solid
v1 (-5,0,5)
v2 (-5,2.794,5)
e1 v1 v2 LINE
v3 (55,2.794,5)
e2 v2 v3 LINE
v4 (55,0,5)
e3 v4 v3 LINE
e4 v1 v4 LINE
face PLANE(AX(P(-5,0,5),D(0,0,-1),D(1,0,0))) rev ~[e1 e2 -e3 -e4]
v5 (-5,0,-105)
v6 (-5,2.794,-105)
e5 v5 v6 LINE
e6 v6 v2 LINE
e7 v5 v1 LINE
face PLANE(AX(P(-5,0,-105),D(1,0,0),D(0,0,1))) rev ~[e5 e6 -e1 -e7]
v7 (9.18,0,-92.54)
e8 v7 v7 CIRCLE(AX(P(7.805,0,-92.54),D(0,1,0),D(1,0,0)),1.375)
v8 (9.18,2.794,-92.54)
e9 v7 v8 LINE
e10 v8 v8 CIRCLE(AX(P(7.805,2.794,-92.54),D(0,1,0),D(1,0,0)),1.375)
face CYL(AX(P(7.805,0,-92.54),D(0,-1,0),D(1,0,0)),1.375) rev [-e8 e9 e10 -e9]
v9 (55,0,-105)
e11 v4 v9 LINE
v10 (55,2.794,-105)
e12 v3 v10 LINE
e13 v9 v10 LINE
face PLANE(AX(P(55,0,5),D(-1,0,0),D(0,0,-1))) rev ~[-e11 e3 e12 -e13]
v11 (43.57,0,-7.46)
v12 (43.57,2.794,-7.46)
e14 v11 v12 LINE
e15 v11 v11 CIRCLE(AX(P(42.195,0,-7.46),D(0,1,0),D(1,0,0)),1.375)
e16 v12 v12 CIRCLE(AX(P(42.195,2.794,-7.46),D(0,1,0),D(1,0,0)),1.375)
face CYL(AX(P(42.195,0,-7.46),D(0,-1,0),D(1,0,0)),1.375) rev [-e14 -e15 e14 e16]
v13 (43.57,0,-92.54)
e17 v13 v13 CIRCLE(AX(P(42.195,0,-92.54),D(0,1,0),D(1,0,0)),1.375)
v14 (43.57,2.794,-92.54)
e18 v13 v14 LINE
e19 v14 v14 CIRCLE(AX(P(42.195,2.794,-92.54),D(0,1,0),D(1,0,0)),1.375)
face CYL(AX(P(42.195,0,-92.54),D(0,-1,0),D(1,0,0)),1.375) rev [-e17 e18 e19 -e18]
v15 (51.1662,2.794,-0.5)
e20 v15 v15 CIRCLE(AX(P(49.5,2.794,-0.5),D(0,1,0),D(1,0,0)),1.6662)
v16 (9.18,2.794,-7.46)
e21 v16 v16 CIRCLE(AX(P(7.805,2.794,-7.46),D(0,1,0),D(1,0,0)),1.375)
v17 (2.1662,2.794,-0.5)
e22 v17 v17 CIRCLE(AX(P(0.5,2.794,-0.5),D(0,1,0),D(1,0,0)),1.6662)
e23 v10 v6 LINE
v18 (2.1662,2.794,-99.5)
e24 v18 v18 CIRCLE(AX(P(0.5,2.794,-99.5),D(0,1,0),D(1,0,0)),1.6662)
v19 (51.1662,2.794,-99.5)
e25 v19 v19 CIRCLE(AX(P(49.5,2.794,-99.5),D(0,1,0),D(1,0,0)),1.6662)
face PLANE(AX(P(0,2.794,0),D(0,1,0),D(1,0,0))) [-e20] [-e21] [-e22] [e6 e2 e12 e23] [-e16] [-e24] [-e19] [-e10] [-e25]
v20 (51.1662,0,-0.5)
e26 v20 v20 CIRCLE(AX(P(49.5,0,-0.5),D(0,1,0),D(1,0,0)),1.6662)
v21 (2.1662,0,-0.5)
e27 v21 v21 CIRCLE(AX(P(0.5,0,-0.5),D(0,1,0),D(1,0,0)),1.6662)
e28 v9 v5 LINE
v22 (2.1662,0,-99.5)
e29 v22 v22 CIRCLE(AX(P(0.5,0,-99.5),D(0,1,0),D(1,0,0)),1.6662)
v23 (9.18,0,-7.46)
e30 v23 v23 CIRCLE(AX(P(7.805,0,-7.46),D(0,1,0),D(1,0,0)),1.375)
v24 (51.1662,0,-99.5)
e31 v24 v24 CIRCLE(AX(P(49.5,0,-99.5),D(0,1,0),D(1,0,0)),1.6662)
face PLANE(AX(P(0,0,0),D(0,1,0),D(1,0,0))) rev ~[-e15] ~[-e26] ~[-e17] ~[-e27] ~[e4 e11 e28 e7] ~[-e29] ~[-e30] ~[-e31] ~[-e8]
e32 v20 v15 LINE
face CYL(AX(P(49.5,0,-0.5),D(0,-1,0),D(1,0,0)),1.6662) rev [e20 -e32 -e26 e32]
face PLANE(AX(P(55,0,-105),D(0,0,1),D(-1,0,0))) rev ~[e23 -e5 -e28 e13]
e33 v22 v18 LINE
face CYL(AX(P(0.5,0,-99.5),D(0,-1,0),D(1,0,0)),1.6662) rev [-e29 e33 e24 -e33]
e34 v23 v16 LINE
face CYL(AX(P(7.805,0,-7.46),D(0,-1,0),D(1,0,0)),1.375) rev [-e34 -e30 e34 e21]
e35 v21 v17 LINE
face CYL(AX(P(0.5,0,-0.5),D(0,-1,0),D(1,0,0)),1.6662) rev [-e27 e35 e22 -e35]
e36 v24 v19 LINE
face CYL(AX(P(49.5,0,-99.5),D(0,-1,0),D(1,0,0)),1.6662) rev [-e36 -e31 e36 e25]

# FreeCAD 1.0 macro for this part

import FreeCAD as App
import Part
import Sketcher

V = App.Vector
Q = App.Units.Quantity


def add_polygon(sketch, points):
    """Adds a closed chain of lines whose ends are joined by coincident constraints."""
    first, n = sketch.GeometryCount, len(points)
    for a, b in zip(points, points[1:] + points[:1]):
        sketch.addGeometry(Part.LineSegment(App.Vector(*a, 0), App.Vector(*b, 0)), False)
    for i in range(n):
        sketch.addConstraint(Sketcher.Constraint("Coincident", first + i, 2, first + (i + 1) % n, 1))

doc = App.newDocument("Part")
body = doc.addObject("PartDesign::Body", "Body")

sketch1 = doc.addObject("Sketcher::SketchObject", "Sketch")
body.addObject(sketch1)
sketch1.AttachmentSupport = (doc.XZ_Plane, [""])
sketch1.MapMode = "FlatFace"
add_polygon(sketch1, [(-5, -105), (-5, 5), (55, 5), (55, -105)])
sketch1.addGeometry(Part.Circle(V(0.5, -0.5, 0), V(0, 0, 1), 1.6662), False)
sketch1.addGeometry(Part.Circle(V(7.805, -7.46, 0), V(0, 0, 1), 1.375), False)
sketch1.addGeometry(Part.Circle(V(42.195, -7.46, 0), V(0, 0, 1), 1.375), False)
sketch1.addGeometry(Part.Circle(V(49.5, -0.5, 0), V(0, 0, 1), 1.6662), False)
sketch1.addGeometry(Part.Circle(V(0.5, -99.5, 0), V(0, 0, 1), 1.6662), False)
sketch1.addGeometry(Part.Circle(V(7.805, -92.54, 0), V(0, 0, 1), 1.375), False)
sketch1.addGeometry(Part.Circle(V(42.195, -92.54, 0), V(0, 0, 1), 1.375), False)
sketch1.addGeometry(Part.Circle(V(49.5, -99.5, 0), V(0, 0, 1), 1.6662), False)
sketch1.addConstraint([
    Sketcher.Constraint("Vertical", 0),
    Sketcher.Constraint("Horizontal", 1),
    Sketcher.Constraint("Vertical", 2),
    Sketcher.Constraint("Horizontal", 3),
    Sketcher.Constraint("Equal", 5, 6),
    Sketcher.Constraint("Equal", 4, 7),
    Sketcher.Constraint("Equal", 7, 8),
    Sketcher.Constraint("Equal", 6, 9),
    Sketcher.Constraint("Equal", 9, 10),
    Sketcher.Constraint("Equal", 8, 11),
    Sketcher.Constraint("Horizontal", 5, 3, 6, 3),
    Sketcher.Constraint("Horizontal", 4, 3, 7, 3),
    Sketcher.Constraint("Horizontal", 9, 3, 10, 3),
    Sketcher.Constraint("Horizontal", 8, 3, 11, 3),
    Sketcher.Constraint("Vertical", 4, 3, 8, 3),
    Sketcher.Constraint("Vertical", 5, 3, 9, 3),
    Sketcher.Constraint("Vertical", 6, 3, 10, 3),
    Sketcher.Constraint("Vertical", 7, 3, 11, 3),
    Sketcher.Constraint("Diameter", 4, Q("0.1312 in")),
    Sketcher.Constraint("Diameter", 5, Q("2.75 mm")),
    Sketcher.Constraint("DistanceX", 1, 1, 1, 2, Q("2.3622 in")),
    Sketcher.Constraint("DistanceY", 0, 1, 0, 2, Q("4.3307 in")),
    Sketcher.Constraint("DistanceY", 5, 3, -1, 1, Q("0.2937 in")),
    Sketcher.Constraint("DistanceY", 9, 3, -1, 1, Q("3.6433 in")),
    Sketcher.Constraint("DistanceX", 4, 3, 5, 3, Q("0.2876 in")),
    Sketcher.Constraint("DistanceX", 6, 3, 7, 3, Q("0.2876 in")),
    Sketcher.Constraint("DistanceX", -1, 1, 4, 3, Q("0.5 mm")),
    Sketcher.Constraint("DistanceY", 4, 3, -1, 1, Q("0.5 mm")),
    Sketcher.Constraint("DistanceX", -1, 1, 6, 3, Q("42.195 mm")),
    Sketcher.Constraint("DistanceY", 8, 3, -1, 1, Q("99.5 mm")),
    Sketcher.Constraint("DistanceX", 0, 2, -1, 1, Q("5 mm")),
    Sketcher.Constraint("DistanceY", -1, 1, 0, 2, Q("5 mm")),
])
pad1 = doc.addObject("PartDesign::Pad", "Pad")
body.addObject(pad1)
pad1.Profile = sketch1
pad1.Length = Q("0.11 in")
pad1.Reversed = True

doc.recompute()
